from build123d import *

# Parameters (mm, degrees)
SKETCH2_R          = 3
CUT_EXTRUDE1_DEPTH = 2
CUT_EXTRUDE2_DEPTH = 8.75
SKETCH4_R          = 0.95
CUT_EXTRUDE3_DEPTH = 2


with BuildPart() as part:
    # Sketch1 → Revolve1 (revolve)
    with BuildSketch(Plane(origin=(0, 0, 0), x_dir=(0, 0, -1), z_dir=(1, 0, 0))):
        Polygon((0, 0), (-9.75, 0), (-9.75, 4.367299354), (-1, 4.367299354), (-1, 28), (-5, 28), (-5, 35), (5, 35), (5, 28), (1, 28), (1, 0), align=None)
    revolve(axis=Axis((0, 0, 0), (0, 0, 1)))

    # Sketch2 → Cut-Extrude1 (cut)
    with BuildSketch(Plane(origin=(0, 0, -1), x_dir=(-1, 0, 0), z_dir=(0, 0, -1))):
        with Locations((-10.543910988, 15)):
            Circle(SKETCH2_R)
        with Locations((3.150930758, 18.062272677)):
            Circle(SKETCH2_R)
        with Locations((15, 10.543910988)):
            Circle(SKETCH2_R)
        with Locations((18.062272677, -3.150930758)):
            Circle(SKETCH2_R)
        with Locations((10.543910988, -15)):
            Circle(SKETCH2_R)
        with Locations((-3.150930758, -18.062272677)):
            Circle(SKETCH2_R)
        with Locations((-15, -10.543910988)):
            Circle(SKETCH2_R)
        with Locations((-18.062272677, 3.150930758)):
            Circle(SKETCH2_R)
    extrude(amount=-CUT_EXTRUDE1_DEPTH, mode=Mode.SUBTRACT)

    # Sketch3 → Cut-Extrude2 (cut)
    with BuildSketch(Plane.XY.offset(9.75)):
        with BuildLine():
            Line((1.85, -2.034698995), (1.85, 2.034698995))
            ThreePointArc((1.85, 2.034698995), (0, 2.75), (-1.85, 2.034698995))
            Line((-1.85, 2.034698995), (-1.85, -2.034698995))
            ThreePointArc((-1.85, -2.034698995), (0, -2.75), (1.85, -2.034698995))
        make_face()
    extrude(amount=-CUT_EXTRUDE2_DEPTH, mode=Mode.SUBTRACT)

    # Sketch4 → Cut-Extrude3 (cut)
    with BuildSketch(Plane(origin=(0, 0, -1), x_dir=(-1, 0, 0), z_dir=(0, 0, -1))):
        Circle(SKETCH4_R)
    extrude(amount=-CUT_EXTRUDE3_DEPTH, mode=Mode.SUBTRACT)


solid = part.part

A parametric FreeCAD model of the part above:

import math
import FreeCAD as App
import Part
import Sketcher


def add_polygon(sketch, points):
    """Adds a closed chain of lines whose ends are joined by coincident constraints."""
    first, n = sketch.GeometryCount, len(points)
    for a, b in zip(points, points[1:] + points[:1]):
        sketch.addGeometry(Part.LineSegment(App.Vector(*a, 0), App.Vector(*b, 0)), False)
    for i in range(n):
        sketch.addConstraint(Sketcher.Constraint("Coincident", first + i, 2, first + (i + 1) % n, 1))

doc = App.newDocument("Part")
body = doc.addObject("PartDesign::Body", "Body")

sketch1 = doc.addObject("Sketcher::SketchObject", "Sketch")
body.addObject(sketch1)
sketch1.AttachmentSupport = (doc.YZ_Plane, [""])
sketch1.MapMode = "FlatFace"
add_polygon(sketch1, [(0, 9.75), (0, -1), (28, -1), (28, -5), (35, -5), (35, 5), (28, 5), (28, 1), (4.367299, 1), (4.367299, 9.75)])
sketch1.addConstraint([
    Sketcher.Constraint("Vertical", 0),
    Sketcher.Constraint("Horizontal", 1),
    Sketcher.Constraint("Vertical", 2),
    Sketcher.Constraint("Horizontal", 3),
    Sketcher.Constraint("Vertical", 4),
    Sketcher.Constraint("Horizontal", 5),
    Sketcher.Constraint("Vertical", 6),
    Sketcher.Constraint("Horizontal", 7),
    Sketcher.Constraint("Vertical", 8),
    Sketcher.Constraint("Horizontal", 9),
    Sketcher.Constraint("Symmetric", 2, 2, 5, 2, -1),
    Sketcher.Constraint("PointOnObject", 0, 2, -2),
    Sketcher.Constraint("Equal", 2, 6),
    Sketcher.Constraint("DistanceX", 1, 1, 1, 2, 28.0),
    Sketcher.Constraint("DistanceX", 3, 1, 3, 2, 7.0),
    Sketcher.Constraint("DistanceY", 2, 2, 2, 1, 4.0),
    Sketcher.Constraint("DistanceY", 4, 1, 4, 2, 10.0),
    Sketcher.Constraint("DistanceY", 0, 2, 0, 1, 10.75),
    Sketcher.Constraint("DistanceX", 7, 2, 7, 1, 23.632701),
])
revolution = doc.addObject("PartDesign::Revolution", "Revolution")
body.addObject(revolution)
revolution.Profile = sketch1
revolution.ReferenceAxis = (sketch1, ["V_Axis"])
revolution.Angle = 360

sketch2 = doc.addObject("Sketcher::SketchObject", "Sketch001")
body.addObject(sketch2)
sketch2.AttachmentSupport = (doc.XY_Plane, [""])
sketch2.MapMode = "FlatFace"
sketch2.AttachmentOffset = App.Placement(App.Vector(0, 0, -1), App.Rotation())
sketch2.addGeometry([
    Part.Circle(App.Vector(10.543911, 15, 0), App.Vector(0, 0, 1), 3),
    Part.Circle(App.Vector(-3.150931, 18.062273, 0), App.Vector(0, 0, 1), 3),
    Part.Circle(App.Vector(-15, 10.543911, 0), App.Vector(0, 0, 1), 3),
    Part.Circle(App.Vector(-18.062273, -3.150931, 0), App.Vector(0, 0, 1), 3),
    Part.Circle(App.Vector(-10.543911, -15, 0), App.Vector(0, 0, 1), 3),
    Part.Circle(App.Vector(3.150931, -18.062273, 0), App.Vector(0, 0, 1), 3),
    Part.Circle(App.Vector(15, -10.543911, 0), App.Vector(0, 0, 1), 3),
    Part.Circle(App.Vector(18.062273, 3.150931, 0), App.Vector(0, 0, 1), 3),
], False)
sketch2.addConstraint([
    Sketcher.Constraint("Equal", 0, 1),
    Sketcher.Constraint("Equal", 1, 2),
    Sketcher.Constraint("Equal", 2, 3),
    Sketcher.Constraint("Equal", 3, 4),
    Sketcher.Constraint("Equal", 4, 5),
    Sketcher.Constraint("Equal", 5, 6),
    Sketcher.Constraint("Equal", 6, 7),
    Sketcher.Constraint("Symmetric", 0, 3, 4, 3, -1, 1),
    Sketcher.Constraint("Symmetric", 1, 3, 5, 3, -1, 1),
    Sketcher.Constraint("Symmetric", 2, 3, 6, 3, -1, 1),
    Sketcher.Constraint("Symmetric", 3, 3, 7, 3, -1, 1),
    Sketcher.Constraint("Diameter", 0, 6.0),
    Sketcher.Constraint("DistanceY", -1, 1, 0, 3, 15.0),
    Sketcher.Constraint("DistanceX", 2, 3, -1, 1, 15.0),
    Sketcher.Constraint("DistanceX", -1, 1, 0, 3, 10.543911),
    Sketcher.Constraint("DistanceX", 1, 3, -1, 1, 3.150931),
    Sketcher.Constraint("DistanceY", -1, 1, 2, 3, 10.543911),
    Sketcher.Constraint("DistanceY", 3, 3, -1, 1, 3.150931),
    Sketcher.Constraint("DistanceY", 2, 3, 1, 3, 7.518362),
    Sketcher.Constraint("DistanceX", 3, 3, 1, 3, 14.911342),
])
pocket1 = doc.addObject("PartDesign::Pocket", "Pocket")
body.addObject(pocket1)
pocket1.Profile = sketch2
pocket1.Length = 2
pocket1.Reversed = True

sketch3 = doc.addObject("Sketcher::SketchObject", "Sketch002")
body.addObject(sketch3)
sketch3.AttachmentSupport = (doc.XY_Plane, [""])
sketch3.MapMode = "FlatFace"
sketch3.AttachmentOffset = App.Placement(App.Vector(0, 0, 9.75), App.Rotation())
sketch3.addGeometry([
    Part.LineSegment(App.Vector(1.85, -2.034699, 0), App.Vector(1.85, 2.034699, 0)),
    Part.ArcOfCircle(Part.Circle(App.Vector(0, 0, 0), App.Vector(0, 0, 1), 2.75), math.radians(47.722092), math.radians(132.277908)),
    Part.LineSegment(App.Vector(-1.85, 2.034699, 0), App.Vector(-1.85, -2.034699, 0)),
    Part.ArcOfCircle(Part.Circle(App.Vector(0, 0, 0), App.Vector(0, 0, 1), 2.75), math.radians(-132.277908), math.radians(-47.722092)),
], False)
sketch3.addConstraint([
    Sketcher.Constraint("Coincident", 0, 2, 1, 1),
    Sketcher.Constraint("Coincident", 1, 2, 2, 1),
    Sketcher.Constraint("Coincident", 2, 2, 3, 1),
    Sketcher.Constraint("Coincident", 3, 2, 0, 1),
    Sketcher.Constraint("Vertical", 0),
    Sketcher.Constraint("Vertical", 2),
    Sketcher.Constraint("Coincident", 1, 3, -1, 1),
    Sketcher.Constraint("Coincident", 3, 3, -1, 1),
    Sketcher.Constraint("Equal", 1, 3),
    Sketcher.Constraint("Horizontal", 0, 2, 1, 2),
    Sketcher.Constraint("Radius", 1, 2.75),
    Sketcher.Constraint("DistanceX", 1, 2, 0, 2, 3.7),
])
pocket2 = doc.addObject("PartDesign::Pocket", "Pocket001")
body.addObject(pocket2)
pocket2.Profile = sketch3
pocket2.Length = 8.75

sketch4 = doc.addObject("Sketcher::SketchObject", "Sketch003")
body.addObject(sketch4)
sketch4.AttachmentSupport = (doc.XY_Plane, [""])
sketch4.MapMode = "FlatFace"
sketch4.AttachmentOffset = App.Placement(App.Vector(0, 0, -1), App.Rotation())
sketch4.addGeometry(Part.Circle(App.Vector(0, 0, 0), App.Vector(0, 0, 1), 0.95), False)
sketch4.addConstraint([
    Sketcher.Constraint("Coincident", 0, 3, -1, 1),
    Sketcher.Constraint("Diameter", 0, 1.9),
])
pocket3 = doc.addObject("PartDesign::Pocket", "Pocket002")
body.addObject(pocket3)
pocket3.Profile = sketch4
pocket3.Length = 2
pocket3.Reversed = True

doc.recompute()
